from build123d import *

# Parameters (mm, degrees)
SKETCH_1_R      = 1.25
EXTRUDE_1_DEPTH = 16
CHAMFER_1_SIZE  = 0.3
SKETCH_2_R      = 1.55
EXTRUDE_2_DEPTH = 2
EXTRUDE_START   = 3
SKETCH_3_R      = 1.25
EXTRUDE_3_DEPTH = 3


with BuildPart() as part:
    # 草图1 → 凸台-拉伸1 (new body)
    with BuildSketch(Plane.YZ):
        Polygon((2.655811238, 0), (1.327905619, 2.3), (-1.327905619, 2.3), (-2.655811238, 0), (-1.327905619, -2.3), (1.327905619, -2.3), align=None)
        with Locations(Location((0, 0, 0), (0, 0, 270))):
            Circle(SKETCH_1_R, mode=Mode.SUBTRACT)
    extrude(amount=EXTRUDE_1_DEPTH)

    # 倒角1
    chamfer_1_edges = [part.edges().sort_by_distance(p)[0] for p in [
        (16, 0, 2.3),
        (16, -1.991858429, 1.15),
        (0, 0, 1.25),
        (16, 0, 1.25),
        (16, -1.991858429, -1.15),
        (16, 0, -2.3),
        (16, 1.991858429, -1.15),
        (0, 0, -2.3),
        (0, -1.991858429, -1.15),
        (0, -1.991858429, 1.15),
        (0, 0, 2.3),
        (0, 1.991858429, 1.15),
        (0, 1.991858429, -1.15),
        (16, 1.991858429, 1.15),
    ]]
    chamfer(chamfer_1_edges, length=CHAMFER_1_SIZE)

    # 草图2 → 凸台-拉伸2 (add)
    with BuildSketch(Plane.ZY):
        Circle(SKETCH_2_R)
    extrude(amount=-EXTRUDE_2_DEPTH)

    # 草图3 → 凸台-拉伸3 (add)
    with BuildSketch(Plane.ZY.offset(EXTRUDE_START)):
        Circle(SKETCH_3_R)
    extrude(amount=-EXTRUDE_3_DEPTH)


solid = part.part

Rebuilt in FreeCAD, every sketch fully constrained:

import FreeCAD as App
import Part
import Sketcher
Q = App.Units.Quantity


def edges_at(feature, points):
    """Names of the edges that pass closest to the given points."""
    edges = feature.Shape.Edges
    near = lambda p: min(range(len(edges)), key=lambda i: edges[i].distToShape(Part.Vertex(*p))[0])
    return sorted({f"Edge{near(p) + 1}" for p in points})


def add_polygon(sketch, points):
    """Adds a closed chain of lines whose ends are joined by coincident constraints."""
    first, n = sketch.GeometryCount, len(points)
    for a, b in zip(points, points[1:] + points[:1]):
        sketch.addGeometry(Part.LineSegment(App.Vector(*a, 0), App.Vector(*b, 0)), False)
    for i in range(n):
        sketch.addConstraint(Sketcher.Constraint("Coincident", first + i, 2, first + (i + 1) % n, 1))

doc = App.newDocument("Part")
body = doc.addObject("PartDesign::Body", "Body")

# Sketch on YZ plane
sketch1 = body.newObject("Sketcher::SketchObject", "Sketch")
sketch1.AttachmentSupport = (doc.getObject("YZ_Plane"), [""])
sketch1.MapMode = "FlatFace"
add_polygon(sketch1, [(2.7, 0), (1.3, 2.3), (-1.3, 2.3), (-2.7, 0), (-1.3, -2.3), (1.3, -2.3)])  # lines 0-5
sketch1.addGeometry(Part.Circle(App.Vector(0, 0, 0), App.Vector(0, 0, 1), 1.2), False)  # 6
sketch1.addConstraint([
    Sketcher.Constraint("Horizontal", 1),
    Sketcher.Constraint("Horizontal", 4),
    Sketcher.Constraint("Coincident", 6, 3, -1, 1),
    Sketcher.Constraint("Symmetric", 0, 2, 3, 2, -1, 1),
    Sketcher.Constraint("Symmetric", 2, 2, 5, 2, -1, 1),
    Sketcher.Constraint("PointOnObject", 2, 2, -1),
    Sketcher.Constraint("Parallel", 2, 5),
    Sketcher.Constraint("Vertical", 1, 2, 3, 2),
    Sketcher.Constraint("Diameter", 6, Q("2.5 mm")),
    Sketcher.Constraint("Angle", 0, Q("120 deg")),
    Sketcher.Constraint("DistanceY", -1, 1, 0, 2, Q("2.3 mm")),
    Sketcher.Constraint("DistanceX", 1, 2, 1, 1, Q("2.655811 mm")),
])
pad1 = body.newObject("PartDesign::Pad", "Pad")
pad1.Profile = sketch1
pad1.Length = 16
doc.recompute()

chamfer = body.newObject("PartDesign::Chamfer", "Chamfer")
chamfer.Base = (pad1, edges_at(pad1, [
    (16, 0, 2.3),
    (16, -1.992, 1.15),
    (0, 0, 1.25),
    (16, 0, 1.25),
    (16, -1.992, -1.15),
    (16, 0, -2.3),
    (16, 1.992, -1.15),
    (0, 0, -2.3),
    (0, -1.992, -1.15),
    (0, -1.992, 1.15),
    (0, 0, 2.3),
    (0, 1.992, 1.15),
    (0, 1.992, -1.15),
    (16, 1.992, 1.15),
]))
chamfer.Size = 0.3

# Sketch on YZ plane
sketch2 = body.newObject("Sketcher::SketchObject", "Sketch001")
sketch2.AttachmentSupport = (doc.getObject("YZ_Plane"), [""])
sketch2.MapMode = "FlatFace"
sketch2.addGeometry(Part.Circle(App.Vector(0, 0, 0), App.Vector(0, 0, 1), 1.6), False)
sketch2.addConstraint([
    Sketcher.Constraint("Coincident", 0, 3, -1, 1),
    Sketcher.Constraint("Diameter", 0, Q("3.1 mm")),
])
pad2 = body.newObject("PartDesign::Pad", "Pad001")
pad2.Profile = sketch2
pad2.Length = 2

# Sketch on YZ plane
sketch3 = body.newObject("Sketcher::SketchObject", "Sketch002")
sketch3.AttachmentSupport = (doc.getObject("YZ_Plane"), [""])
sketch3.MapMode = "FlatFace"
sketch3.AttachmentOffset = App.Placement(App.Vector(0, 0, -3), App.Rotation())
sketch3.addGeometry(Part.Circle(App.Vector(0, 0, 0), App.Vector(0, 0, 1), 1.2), False)
sketch3.addConstraint([
    Sketcher.Constraint("Coincident", 0, 3, -1, 1),
    Sketcher.Constraint("Diameter", 0, Q("2.5 mm")),
])
pad3 = body.newObject("PartDesign::Pad", "Pad002")
pad3.Profile = sketch3
pad3.Length = 3

doc.recompute()
